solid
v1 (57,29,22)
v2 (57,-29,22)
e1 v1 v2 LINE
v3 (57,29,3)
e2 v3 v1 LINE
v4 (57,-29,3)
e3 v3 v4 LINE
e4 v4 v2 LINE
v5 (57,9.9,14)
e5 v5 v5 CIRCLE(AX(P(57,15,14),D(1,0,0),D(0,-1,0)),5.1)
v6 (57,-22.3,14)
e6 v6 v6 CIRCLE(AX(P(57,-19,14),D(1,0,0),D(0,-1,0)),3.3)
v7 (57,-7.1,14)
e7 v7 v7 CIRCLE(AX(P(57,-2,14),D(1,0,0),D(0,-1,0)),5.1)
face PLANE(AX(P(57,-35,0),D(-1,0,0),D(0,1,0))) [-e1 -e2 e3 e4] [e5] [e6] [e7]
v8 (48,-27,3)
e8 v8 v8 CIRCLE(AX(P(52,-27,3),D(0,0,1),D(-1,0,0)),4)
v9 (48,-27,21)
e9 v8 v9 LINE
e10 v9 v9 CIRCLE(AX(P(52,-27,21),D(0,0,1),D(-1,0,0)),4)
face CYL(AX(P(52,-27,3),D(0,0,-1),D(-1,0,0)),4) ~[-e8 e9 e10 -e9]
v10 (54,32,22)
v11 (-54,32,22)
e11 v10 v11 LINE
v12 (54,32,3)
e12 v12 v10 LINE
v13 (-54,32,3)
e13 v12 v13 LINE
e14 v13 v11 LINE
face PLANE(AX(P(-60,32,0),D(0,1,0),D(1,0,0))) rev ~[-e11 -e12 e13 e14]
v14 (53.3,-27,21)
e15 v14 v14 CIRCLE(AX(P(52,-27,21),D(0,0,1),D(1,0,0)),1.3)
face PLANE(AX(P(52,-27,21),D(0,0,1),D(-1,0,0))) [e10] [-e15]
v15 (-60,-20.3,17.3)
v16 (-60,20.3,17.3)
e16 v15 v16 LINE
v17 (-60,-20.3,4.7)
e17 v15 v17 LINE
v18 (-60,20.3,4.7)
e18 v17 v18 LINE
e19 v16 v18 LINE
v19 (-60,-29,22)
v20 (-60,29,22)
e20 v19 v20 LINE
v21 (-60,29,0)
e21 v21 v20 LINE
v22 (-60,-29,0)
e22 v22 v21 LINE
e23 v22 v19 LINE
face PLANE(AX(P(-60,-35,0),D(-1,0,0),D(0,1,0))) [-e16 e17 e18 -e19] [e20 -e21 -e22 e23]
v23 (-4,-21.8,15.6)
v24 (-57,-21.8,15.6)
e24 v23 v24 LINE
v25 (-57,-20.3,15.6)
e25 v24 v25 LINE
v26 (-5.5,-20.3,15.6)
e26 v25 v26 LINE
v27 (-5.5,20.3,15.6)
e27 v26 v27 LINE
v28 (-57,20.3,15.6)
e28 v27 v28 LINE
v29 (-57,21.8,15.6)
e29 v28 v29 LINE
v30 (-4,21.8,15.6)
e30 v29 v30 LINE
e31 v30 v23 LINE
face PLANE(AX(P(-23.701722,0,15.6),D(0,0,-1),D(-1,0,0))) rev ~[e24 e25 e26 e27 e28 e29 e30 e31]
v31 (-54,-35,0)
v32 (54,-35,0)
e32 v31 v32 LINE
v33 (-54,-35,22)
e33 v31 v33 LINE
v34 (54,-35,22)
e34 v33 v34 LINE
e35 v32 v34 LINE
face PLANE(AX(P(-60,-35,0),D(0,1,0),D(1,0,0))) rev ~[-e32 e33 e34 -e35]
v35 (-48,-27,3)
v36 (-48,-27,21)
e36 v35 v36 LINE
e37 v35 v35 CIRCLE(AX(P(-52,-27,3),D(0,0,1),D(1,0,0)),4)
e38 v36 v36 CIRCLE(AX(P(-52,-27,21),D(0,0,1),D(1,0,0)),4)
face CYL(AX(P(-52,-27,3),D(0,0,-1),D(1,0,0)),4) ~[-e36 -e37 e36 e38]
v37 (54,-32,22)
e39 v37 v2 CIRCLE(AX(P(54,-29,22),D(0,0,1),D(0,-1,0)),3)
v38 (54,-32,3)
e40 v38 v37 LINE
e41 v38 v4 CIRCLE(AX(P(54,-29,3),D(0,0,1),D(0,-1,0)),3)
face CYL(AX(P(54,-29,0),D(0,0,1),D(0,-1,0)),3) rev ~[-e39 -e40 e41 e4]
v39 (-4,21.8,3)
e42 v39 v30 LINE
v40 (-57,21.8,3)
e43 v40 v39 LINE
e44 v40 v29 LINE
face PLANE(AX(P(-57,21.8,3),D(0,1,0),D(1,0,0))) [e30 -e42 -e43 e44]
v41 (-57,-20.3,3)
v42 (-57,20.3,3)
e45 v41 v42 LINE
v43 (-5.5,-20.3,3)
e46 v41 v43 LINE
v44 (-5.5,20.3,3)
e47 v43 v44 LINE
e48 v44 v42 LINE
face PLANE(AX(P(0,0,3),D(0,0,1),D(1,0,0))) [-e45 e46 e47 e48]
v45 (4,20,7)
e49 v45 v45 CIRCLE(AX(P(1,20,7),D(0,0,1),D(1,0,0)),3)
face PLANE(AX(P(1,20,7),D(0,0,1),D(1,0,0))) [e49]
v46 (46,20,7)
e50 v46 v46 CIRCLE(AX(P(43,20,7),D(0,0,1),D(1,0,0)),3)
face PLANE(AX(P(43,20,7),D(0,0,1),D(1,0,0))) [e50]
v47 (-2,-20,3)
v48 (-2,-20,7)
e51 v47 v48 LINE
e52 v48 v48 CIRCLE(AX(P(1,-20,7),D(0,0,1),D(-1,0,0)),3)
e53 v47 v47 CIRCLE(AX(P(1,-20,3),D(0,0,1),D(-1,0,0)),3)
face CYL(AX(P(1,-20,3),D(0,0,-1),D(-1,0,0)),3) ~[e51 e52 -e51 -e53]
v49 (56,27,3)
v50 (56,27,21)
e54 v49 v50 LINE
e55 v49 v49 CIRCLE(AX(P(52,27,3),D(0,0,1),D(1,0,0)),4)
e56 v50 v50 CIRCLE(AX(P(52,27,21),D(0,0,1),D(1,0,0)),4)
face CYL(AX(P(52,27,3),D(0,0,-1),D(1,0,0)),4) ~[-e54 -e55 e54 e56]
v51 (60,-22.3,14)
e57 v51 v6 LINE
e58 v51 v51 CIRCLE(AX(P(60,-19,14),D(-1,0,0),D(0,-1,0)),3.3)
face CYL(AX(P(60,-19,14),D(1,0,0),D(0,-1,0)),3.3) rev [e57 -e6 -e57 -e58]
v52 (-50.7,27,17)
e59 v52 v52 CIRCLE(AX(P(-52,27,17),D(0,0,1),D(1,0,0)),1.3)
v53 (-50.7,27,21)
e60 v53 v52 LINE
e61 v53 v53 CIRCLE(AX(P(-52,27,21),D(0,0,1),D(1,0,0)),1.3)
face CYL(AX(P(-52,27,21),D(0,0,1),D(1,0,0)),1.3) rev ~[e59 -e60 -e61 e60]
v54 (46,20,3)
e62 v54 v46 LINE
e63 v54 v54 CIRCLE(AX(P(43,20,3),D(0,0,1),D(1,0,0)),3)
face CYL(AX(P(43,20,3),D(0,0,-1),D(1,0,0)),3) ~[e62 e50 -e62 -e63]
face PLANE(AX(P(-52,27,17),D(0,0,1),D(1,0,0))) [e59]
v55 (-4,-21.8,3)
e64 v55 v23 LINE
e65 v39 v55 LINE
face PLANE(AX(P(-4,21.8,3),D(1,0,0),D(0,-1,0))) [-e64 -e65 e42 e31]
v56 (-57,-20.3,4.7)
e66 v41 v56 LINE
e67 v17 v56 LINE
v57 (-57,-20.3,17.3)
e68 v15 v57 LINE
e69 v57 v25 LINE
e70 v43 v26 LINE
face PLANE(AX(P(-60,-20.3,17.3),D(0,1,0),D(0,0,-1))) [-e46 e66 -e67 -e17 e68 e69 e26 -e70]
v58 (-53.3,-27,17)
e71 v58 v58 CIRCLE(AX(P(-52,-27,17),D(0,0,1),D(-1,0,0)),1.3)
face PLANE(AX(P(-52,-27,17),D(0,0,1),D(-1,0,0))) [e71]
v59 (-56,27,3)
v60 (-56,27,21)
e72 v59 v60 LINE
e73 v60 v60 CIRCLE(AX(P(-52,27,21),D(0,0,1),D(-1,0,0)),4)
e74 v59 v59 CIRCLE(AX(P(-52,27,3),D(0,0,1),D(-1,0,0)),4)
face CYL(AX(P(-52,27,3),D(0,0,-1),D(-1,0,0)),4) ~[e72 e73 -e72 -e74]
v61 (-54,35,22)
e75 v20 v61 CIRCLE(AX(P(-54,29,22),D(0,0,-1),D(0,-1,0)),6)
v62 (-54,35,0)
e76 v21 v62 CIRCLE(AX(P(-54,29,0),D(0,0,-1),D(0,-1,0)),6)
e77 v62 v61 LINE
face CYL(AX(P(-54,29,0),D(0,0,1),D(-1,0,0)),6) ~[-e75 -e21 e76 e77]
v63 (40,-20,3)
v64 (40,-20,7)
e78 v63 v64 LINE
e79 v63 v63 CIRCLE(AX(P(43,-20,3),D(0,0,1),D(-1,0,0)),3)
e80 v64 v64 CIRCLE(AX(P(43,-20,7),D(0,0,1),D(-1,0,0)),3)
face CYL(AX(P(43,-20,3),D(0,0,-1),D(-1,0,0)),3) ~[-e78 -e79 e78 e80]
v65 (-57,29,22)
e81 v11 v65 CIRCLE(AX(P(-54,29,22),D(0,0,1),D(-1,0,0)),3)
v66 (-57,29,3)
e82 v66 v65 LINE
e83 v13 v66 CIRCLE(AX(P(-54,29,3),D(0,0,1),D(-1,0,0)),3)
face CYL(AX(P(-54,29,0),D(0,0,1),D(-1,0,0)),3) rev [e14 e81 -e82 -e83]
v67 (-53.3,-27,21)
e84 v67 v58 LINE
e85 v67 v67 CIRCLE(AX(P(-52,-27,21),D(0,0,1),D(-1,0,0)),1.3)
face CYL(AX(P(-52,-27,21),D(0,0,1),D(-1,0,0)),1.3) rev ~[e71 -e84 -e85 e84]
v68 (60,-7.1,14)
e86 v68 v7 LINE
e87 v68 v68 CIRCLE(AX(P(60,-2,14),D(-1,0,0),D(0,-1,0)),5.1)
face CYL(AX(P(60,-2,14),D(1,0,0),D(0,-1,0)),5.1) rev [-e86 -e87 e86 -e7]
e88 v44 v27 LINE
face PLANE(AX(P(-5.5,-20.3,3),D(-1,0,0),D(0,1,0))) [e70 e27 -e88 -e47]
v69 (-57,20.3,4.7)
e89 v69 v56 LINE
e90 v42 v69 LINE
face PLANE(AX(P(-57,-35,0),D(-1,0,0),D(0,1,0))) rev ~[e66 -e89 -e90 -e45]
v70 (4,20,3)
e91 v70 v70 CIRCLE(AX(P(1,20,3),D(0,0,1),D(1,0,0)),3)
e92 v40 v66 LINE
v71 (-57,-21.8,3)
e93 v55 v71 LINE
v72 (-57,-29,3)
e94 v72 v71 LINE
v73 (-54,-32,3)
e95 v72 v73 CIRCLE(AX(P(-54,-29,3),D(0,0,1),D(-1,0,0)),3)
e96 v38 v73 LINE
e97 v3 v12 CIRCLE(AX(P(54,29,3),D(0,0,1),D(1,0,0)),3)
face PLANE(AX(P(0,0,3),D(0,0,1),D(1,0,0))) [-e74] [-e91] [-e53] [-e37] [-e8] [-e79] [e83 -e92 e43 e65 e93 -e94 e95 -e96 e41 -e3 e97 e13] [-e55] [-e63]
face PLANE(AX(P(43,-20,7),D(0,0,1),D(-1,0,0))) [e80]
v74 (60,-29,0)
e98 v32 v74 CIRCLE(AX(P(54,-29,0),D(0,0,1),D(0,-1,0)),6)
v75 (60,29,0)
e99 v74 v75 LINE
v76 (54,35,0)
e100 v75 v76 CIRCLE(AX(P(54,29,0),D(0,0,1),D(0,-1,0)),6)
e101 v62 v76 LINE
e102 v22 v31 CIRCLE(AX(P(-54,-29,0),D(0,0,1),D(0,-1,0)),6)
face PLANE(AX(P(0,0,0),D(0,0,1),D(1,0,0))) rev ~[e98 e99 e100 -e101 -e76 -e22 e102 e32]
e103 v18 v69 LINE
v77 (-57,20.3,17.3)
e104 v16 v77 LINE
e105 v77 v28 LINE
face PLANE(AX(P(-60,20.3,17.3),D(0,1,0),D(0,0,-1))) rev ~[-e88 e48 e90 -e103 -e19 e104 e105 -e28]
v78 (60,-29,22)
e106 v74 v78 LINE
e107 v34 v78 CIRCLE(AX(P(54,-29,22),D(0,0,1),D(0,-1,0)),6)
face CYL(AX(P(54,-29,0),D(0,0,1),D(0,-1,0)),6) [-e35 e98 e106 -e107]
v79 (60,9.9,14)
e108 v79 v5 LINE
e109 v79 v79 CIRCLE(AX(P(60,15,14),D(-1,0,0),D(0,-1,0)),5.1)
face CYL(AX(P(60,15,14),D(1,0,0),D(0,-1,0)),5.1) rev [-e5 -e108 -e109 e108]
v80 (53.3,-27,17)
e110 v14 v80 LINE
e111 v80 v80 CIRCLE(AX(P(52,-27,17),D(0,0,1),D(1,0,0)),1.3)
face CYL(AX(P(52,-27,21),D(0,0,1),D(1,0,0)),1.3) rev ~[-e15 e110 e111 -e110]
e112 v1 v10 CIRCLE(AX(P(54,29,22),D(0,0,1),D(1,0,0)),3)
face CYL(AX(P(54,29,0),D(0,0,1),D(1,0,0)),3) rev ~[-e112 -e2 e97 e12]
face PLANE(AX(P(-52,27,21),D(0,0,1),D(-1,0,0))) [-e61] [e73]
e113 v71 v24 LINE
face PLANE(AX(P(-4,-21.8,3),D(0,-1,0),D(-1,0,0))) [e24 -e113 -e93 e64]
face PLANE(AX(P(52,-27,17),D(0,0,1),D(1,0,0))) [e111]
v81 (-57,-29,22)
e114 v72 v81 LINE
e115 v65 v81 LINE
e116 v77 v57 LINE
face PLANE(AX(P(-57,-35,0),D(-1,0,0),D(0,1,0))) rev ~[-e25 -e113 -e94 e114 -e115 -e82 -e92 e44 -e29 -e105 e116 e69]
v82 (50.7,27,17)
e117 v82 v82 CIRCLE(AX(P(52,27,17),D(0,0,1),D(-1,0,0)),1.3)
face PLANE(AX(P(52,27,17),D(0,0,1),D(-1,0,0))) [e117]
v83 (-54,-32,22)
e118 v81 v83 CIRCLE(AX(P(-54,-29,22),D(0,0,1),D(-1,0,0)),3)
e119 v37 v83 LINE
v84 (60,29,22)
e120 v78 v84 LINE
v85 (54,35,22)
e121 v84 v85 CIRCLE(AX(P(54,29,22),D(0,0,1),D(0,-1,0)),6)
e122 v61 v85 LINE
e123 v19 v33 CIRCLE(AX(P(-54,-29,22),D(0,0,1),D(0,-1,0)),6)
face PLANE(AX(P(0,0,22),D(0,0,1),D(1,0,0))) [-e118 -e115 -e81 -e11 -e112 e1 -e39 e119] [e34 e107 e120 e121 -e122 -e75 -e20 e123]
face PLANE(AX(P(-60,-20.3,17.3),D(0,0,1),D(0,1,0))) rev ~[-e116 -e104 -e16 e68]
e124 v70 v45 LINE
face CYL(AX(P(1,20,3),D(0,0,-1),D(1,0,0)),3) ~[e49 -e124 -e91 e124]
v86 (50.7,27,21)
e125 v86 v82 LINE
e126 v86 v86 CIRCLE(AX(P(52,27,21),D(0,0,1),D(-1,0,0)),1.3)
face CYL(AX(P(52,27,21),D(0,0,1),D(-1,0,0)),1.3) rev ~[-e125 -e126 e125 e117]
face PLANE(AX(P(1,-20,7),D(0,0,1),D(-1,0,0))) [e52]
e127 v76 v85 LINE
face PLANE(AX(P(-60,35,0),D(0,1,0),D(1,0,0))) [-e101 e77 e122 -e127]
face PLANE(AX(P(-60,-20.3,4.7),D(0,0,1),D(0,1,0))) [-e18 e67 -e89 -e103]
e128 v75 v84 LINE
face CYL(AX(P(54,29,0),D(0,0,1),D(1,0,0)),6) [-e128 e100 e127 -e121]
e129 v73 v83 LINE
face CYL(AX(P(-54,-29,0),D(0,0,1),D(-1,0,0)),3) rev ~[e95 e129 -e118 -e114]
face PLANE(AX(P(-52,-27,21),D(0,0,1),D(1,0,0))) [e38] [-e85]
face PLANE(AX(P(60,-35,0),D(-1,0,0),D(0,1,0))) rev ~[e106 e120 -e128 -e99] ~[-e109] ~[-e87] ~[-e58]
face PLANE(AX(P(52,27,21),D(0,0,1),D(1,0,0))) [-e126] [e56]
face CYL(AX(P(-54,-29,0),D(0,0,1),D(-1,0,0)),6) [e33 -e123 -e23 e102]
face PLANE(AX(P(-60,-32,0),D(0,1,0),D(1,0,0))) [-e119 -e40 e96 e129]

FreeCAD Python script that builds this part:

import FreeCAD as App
import Part
import Sketcher

V = App.Vector


def edges_at(feature, points):
    """Names of the edges that pass closest to the given points."""
    edges = feature.Shape.Edges
    near = lambda p: min(range(len(edges)), key=lambda i: edges[i].distToShape(Part.Vertex(*p))[0])
    return sorted({f"Edge{near(p) + 1}" for p in points})


def faces_at(feature, points):
    """Names of the faces that lie closest to the given points."""
    faces = feature.Shape.Faces
    near = lambda p: min(range(len(faces)), key=lambda i: faces[i].distToShape(Part.Vertex(*p))[0])
    return sorted({f"Face{near(p) + 1}" for p in points})


def add_polygon(sketch, points):
    """Adds a closed chain of lines whose ends are joined by coincident constraints."""
    first, n = sketch.GeometryCount, len(points)
    for a, b in zip(points, points[1:] + points[:1]):
        sketch.addGeometry(Part.LineSegment(App.Vector(*a, 0), App.Vector(*b, 0)), False)
    for i in range(n):
        sketch.addConstraint(Sketcher.Constraint("Coincident", first + i, 2, first + (i + 1) % n, 1))

doc = App.newDocument("Part")
params = doc.addObject("Spreadsheet::Sheet", "Params")
for row, (alias, value) in enumerate([
    ("sketch1_width", "120 mm"),
    ("sketch1_height", "70 mm"),
    ("pad1_length", "22 mm"),
    ("fillet_radius", "6 mm"),
    ("thickness_wall", "3 mm"),
    ("sketch2_diameter", "8 mm"),
    ("pad2_length", "18 mm"),
    ("sketch3_diameter", "2.6 mm"),
    ("pocket1_length", "4 mm"),
    ("sketch4_width", "53 mm"),
    ("sketch4_width2", "51.5 mm"),
    ("sketch4_height", "43.6 mm"),
    ("sketch4_height2", "1.5 mm"),
    ("pad3_length", "12.6 mm"),
    ("sketch5_width", "40.6 mm"),
    ("sketch5_height", "12.6 mm"),
    ("sketch6_diameter", "10.2 mm"),
    ("sketch7_diameter", "10.2 mm"),
    ("sketch8_diameter", "6.6 mm"),
    ("sketch9_diameter", "6 mm"),
    ("pad4_length", "4 mm"),
], start=1):
    params.set(f"A{row}", alias)
    params.set(f"B{row}", "=" + value)
    params.setAlias(f"B{row}", alias)

body = doc.addObject("PartDesign::Body", "Body")

sketch1 = body.newObject("Sketcher::SketchObject", "Sketch")
sketch1.AttachmentSupport = (doc.getObject("XY_Plane"), [""])
sketch1.MapMode = "FlatFace"
add_polygon(sketch1, [(-60, 35), (-60, -35), (60, -35), (60, 35)])
sketch1.addConstraint([
    Sketcher.Constraint("Vertical", 0),
    Sketcher.Constraint("Horizontal", 1),
    Sketcher.Constraint("Vertical", 2),
    Sketcher.Constraint("Horizontal", 3),
    Sketcher.Constraint("Symmetric", 0, 2, 2, 2, -1, 1),
    Sketcher.Constraint("DistanceX", 1, 1, 1, 2, 120.0),
    Sketcher.Constraint("DistanceY", 0, 2, 0, 1, 70.0),
])
sketch1.setExpression("Constraints[9]", "Params.sketch1_width")
sketch1.setExpression("Constraints[10]", "Params.sketch1_height")
pad1 = body.newObject("PartDesign::Pad", "Pad")
pad1.Profile = sketch1
pad1.setExpression("Length", "Params.pad1_length")
doc.recompute()

fillet = body.newObject("PartDesign::Fillet", "Fillet")
fillet.Base = (pad1, edges_at(pad1, [
    (-60, 35, 11),
    (60, 35, 11),
    (60, -35, 11),
    (-60, -35, 11),
]))
fillet.setExpression("Radius", "Params.fillet_radius")
doc.recompute()

thickness = body.newObject("PartDesign::Thickness", "Thickness")
thickness.Base = (fillet, faces_at(fillet, [(0, 0, 22)]))
thickness.setExpression("Value", "Params.thickness_wall")
thickness.Reversed = True
thickness.Join = "Intersection"

sketch2 = body.newObject("Sketcher::SketchObject", "Sketch001")
sketch2.AttachmentSupport = (doc.getObject("XY_Plane"), [""])
sketch2.MapMode = "FlatFace"
sketch2.AttachmentOffset = App.Placement(V(0, 0, 3), App.Rotation())
sketch2.addGeometry([
    Part.Circle(V(-52, -27, 0), V(0, 0, 1), 4),
    Part.Circle(V(52, -27, 0), V(0, 0, 1), 4),
    Part.Circle(V(52, 27, 0), V(0, 0, 1), 4),
    Part.Circle(V(-52, 27, 0), V(0, 0, 1), 4),
], False)
sketch2.addConstraint([
    Sketcher.Constraint("Equal", 0, 1),
    Sketcher.Constraint("Equal", 1, 2),
    Sketcher.Constraint("Equal", 2, 3),
    Sketcher.Constraint("Symmetric", 0, 3, 2, 3, -1, 1),
    Sketcher.Constraint("Symmetric", 1, 3, 3, 3, -1, 1),
    Sketcher.Constraint("Symmetric", 0, 3, 1, 3, -2),
    Sketcher.Constraint("Diameter", 0, 8.0),
    Sketcher.Constraint("DistanceX", 0, 3, -1, 1, 52.0),
    Sketcher.Constraint("DistanceY", 0, 3, -1, 1, 27.0),
])
sketch2.setExpression("Constraints[6]", "Params.sketch2_diameter")
pad2 = body.newObject("PartDesign::Pad", "Pad001")
pad2.Profile = sketch2
pad2.setExpression("Length", "Params.pad2_length")

sketch3 = body.newObject("Sketcher::SketchObject", "Sketch002")
sketch3.AttachmentSupport = (doc.getObject("XY_Plane"), [""])
sketch3.MapMode = "FlatFace"
sketch3.AttachmentOffset = App.Placement(V(0, 0, 21), App.Rotation())
sketch3.addGeometry([
    Part.Circle(V(-52, 27, 0), V(0, 0, 1), 1.3),
    Part.Circle(V(-52, -27, 0), V(0, 0, 1), 1.3),
    Part.Circle(V(52, -27, 0), V(0, 0, 1), 1.3),
    Part.Circle(V(52, 27, 0), V(0, 0, 1), 1.3),
], False)
sketch3.addConstraint([
    Sketcher.Constraint("Equal", 0, 1),
    Sketcher.Constraint("Equal", 1, 2),
    Sketcher.Constraint("Equal", 2, 3),
    Sketcher.Constraint("Symmetric", 0, 3, 2, 3, -1, 1),
    Sketcher.Constraint("Symmetric", 1, 3, 3, 3, -1, 1),
    Sketcher.Constraint("Symmetric", 1, 3, 2, 3, -2),
    Sketcher.Constraint("Diameter", 0, 2.6),
    Sketcher.Constraint("DistanceX", 0, 3, -1, 1, 52.0),
    Sketcher.Constraint("DistanceY", -1, 1, 0, 3, 27.0),
])
sketch3.setExpression("Constraints[6]", "Params.sketch3_diameter")
pocket1 = body.newObject("PartDesign::Pocket", "Pocket")
pocket1.Profile = sketch3
pocket1.setExpression("Length", "Params.pocket1_length")

sketch4 = body.newObject("Sketcher::SketchObject", "Sketch003")
sketch4.AttachmentSupport = (doc.getObject("XY_Plane"), [""])
sketch4.MapMode = "FlatFace"
sketch4.AttachmentOffset = App.Placement(V(0, 0, 3), App.Rotation())
add_polygon(sketch4, [(-57, 21.8), (-4, 21.8), (-4, -21.8), (-57, -21.8), (-57, -20.3), (-5.5, -20.3), (-5.5, 20.3), (-57, 20.3)])
sketch4.addConstraint([
    Sketcher.Constraint("Horizontal", 0),
    Sketcher.Constraint("Vertical", 1),
    Sketcher.Constraint("Horizontal", 2),
    Sketcher.Constraint("Vertical", 3),
    Sketcher.Constraint("Horizontal", 4),
    Sketcher.Constraint("Vertical", 5),
    Sketcher.Constraint("Horizontal", 6),
    Sketcher.Constraint("Vertical", 7),
    Sketcher.Constraint("Symmetric", 3, 2, 6, 2, -1),
    Sketcher.Constraint("Equal", 3, 7),
    Sketcher.Constraint("DistanceX", 0, 1, 0, 2, 53.0),
    Sketcher.Constraint("DistanceX", 4, 1, 4, 2, 51.5),
    Sketcher.Constraint("DistanceY", 1, 2, 1, 1, 43.6),
    Sketcher.Constraint("DistanceY", 3, 1, 3, 2, 1.5),
    Sketcher.Constraint("DistanceX", 0, 2, -1, 1, 4.0),
])
sketch4.setExpression("Constraints[18]", "Params.sketch4_width")
sketch4.setExpression("Constraints[19]", "Params.sketch4_width2")
sketch4.setExpression("Constraints[20]", "Params.sketch4_height")
sketch4.setExpression("Constraints[21]", "Params.sketch4_height2")
pad3 = body.newObject("PartDesign::Pad", "Pad002")
pad3.Profile = sketch4
pad3.setExpression("Length", "Params.pad3_length")

sketch5 = body.newObject("Sketcher::SketchObject", "Sketch004")
sketch5.AttachmentSupport = (doc.getObject("YZ_Plane"), [""])
sketch5.MapMode = "FlatFace"
sketch5.AttachmentOffset = App.Placement(V(0, 0, -60), App.Rotation())
add_polygon(sketch5, [(20, 17), (-20, 17), (-20, 5), (20, 5)])
sketch5.addConstraint([
    Sketcher.Constraint("Horizontal", 0),
    Sketcher.Constraint("Vertical", 1),
    Sketcher.Constraint("Horizontal", 2),
    Sketcher.Constraint("Vertical", 3),
    Sketcher.Constraint("DistanceX", 0, 2, 0, 1, 40.6),
    Sketcher.Constraint("DistanceY", 1, 2, 1, 1, 12.6),
    Sketcher.Constraint("DistanceX", 0, 2, -1, 1, 20.3),
    Sketcher.Constraint("DistanceY", -1, 1, 0, 2, 17.3),
])
sketch5.setExpression("Constraints[8]", "Params.sketch5_width")
sketch5.setExpression("Constraints[9]", "Params.sketch5_height")
pocket2 = body.newObject("PartDesign::Pocket", "Pocket001")
pocket2.Profile = sketch5
pocket2.Type = "UpToFirst"
pocket2.Reversed = True

sketch6 = body.newObject("Sketcher::SketchObject", "Sketch005")
sketch6.AttachmentSupport = (doc.getObject("YZ_Plane"), [""])
sketch6.MapMode = "FlatFace"
sketch6.AttachmentOffset = App.Placement(V(0, 0, 60), App.Rotation())
sketch6.addGeometry(Part.Circle(V(15, 14, 0), V(0, 0, 1), 5), False)
sketch6.addConstraint([
    Sketcher.Constraint("Diameter", 0, 10.2),
    Sketcher.Constraint("DistanceX", -1, 1, 0, 3, 15.0),
    Sketcher.Constraint("DistanceY", -1, 1, 0, 3, 14.0),
])
sketch6.setExpression("Constraints[0]", "Params.sketch6_diameter")
pocket3 = body.newObject("PartDesign::Pocket", "Pocket002")
pocket3.Profile = sketch6
pocket3.Type = "UpToFirst"

sketch7 = body.newObject("Sketcher::SketchObject", "Sketch006")
sketch7.AttachmentSupport = (doc.getObject("YZ_Plane"), [""])
sketch7.MapMode = "FlatFace"
sketch7.AttachmentOffset = App.Placement(V(0, 0, 60), App.Rotation())
sketch7.addGeometry(Part.Circle(V(-2, 14, 0), V(0, 0, 1), 5), False)
sketch7.addConstraint([
    Sketcher.Constraint("Diameter", 0, 10.2),
    Sketcher.Constraint("DistanceX", 0, 3, -1, 1, 2.0),
    Sketcher.Constraint("DistanceY", -1, 1, 0, 3, 14.0),
])
sketch7.setExpression("Constraints[0]", "Params.sketch7_diameter")
pocket4 = body.newObject("PartDesign::Pocket", "Pocket003")
pocket4.Profile = sketch7
pocket4.Type = "UpToFirst"

sketch8 = body.newObject("Sketcher::SketchObject", "Sketch007")
sketch8.AttachmentSupport = (doc.getObject("YZ_Plane"), [""])
sketch8.MapMode = "FlatFace"
sketch8.AttachmentOffset = App.Placement(V(0, 0, 60), App.Rotation())
sketch8.addGeometry(Part.Circle(V(-19, 14, 0), V(0, 0, 1), 3.3), False)
sketch8.addConstraint([
    Sketcher.Constraint("Diameter", 0, 6.6),
    Sketcher.Constraint("DistanceX", 0, 3, -1, 1, 19.0),
    Sketcher.Constraint("DistanceY", -1, 1, 0, 3, 14.0),
])
sketch8.setExpression("Constraints[0]", "Params.sketch8_diameter")
pocket5 = body.newObject("PartDesign::Pocket", "Pocket004")
pocket5.Profile = sketch8
pocket5.Type = "UpToFirst"

sketch9 = body.newObject("Sketcher::SketchObject", "Sketch008")
sketch9.AttachmentSupport = (doc.getObject("XY_Plane"), [""])
sketch9.MapMode = "FlatFace"
sketch9.AttachmentOffset = App.Placement(V(0, 0, 3), App.Rotation())
sketch9.addGeometry([
    Part.Circle(V(43, 20, 0), V(0, 0, 1), 3),
    Part.Circle(V(1, 20, 0), V(0, 0, 1), 3),
    Part.Circle(V(1, -20, 0), V(0, 0, 1), 3),
    Part.Circle(V(43, -20, 0), V(0, 0, 1), 3),
], False)
sketch9.addConstraint([
    Sketcher.Constraint("Equal", 0, 1),
    Sketcher.Constraint("Equal", 1, 2),
    Sketcher.Constraint("Equal", 2, 3),
    Sketcher.Constraint("Symmetric", 1, 3, 2, 3, -1),
    Sketcher.Constraint("Symmetric", 0, 3, 3, 3, -1),
    Sketcher.Constraint("Horizontal", 0, 3, 1, 3),
    Sketcher.Constraint("Diameter", 0, 6.0),
    Sketcher.Constraint("DistanceX", -1, 1, 0, 3, 43.0),
    Sketcher.Constraint("DistanceY", -1, 1, 0, 3, 20.0),
    Sketcher.Constraint("DistanceX", -1, 1, 1, 3, 1.0),
])
sketch9.setExpression("Constraints[6]", "Params.sketch9_diameter")
pad4 = body.newObject("PartDesign::Pad", "Pad003")
pad4.Profile = sketch9
pad4.setExpression("Length", "Params.pad4_length")

doc.recompute()
